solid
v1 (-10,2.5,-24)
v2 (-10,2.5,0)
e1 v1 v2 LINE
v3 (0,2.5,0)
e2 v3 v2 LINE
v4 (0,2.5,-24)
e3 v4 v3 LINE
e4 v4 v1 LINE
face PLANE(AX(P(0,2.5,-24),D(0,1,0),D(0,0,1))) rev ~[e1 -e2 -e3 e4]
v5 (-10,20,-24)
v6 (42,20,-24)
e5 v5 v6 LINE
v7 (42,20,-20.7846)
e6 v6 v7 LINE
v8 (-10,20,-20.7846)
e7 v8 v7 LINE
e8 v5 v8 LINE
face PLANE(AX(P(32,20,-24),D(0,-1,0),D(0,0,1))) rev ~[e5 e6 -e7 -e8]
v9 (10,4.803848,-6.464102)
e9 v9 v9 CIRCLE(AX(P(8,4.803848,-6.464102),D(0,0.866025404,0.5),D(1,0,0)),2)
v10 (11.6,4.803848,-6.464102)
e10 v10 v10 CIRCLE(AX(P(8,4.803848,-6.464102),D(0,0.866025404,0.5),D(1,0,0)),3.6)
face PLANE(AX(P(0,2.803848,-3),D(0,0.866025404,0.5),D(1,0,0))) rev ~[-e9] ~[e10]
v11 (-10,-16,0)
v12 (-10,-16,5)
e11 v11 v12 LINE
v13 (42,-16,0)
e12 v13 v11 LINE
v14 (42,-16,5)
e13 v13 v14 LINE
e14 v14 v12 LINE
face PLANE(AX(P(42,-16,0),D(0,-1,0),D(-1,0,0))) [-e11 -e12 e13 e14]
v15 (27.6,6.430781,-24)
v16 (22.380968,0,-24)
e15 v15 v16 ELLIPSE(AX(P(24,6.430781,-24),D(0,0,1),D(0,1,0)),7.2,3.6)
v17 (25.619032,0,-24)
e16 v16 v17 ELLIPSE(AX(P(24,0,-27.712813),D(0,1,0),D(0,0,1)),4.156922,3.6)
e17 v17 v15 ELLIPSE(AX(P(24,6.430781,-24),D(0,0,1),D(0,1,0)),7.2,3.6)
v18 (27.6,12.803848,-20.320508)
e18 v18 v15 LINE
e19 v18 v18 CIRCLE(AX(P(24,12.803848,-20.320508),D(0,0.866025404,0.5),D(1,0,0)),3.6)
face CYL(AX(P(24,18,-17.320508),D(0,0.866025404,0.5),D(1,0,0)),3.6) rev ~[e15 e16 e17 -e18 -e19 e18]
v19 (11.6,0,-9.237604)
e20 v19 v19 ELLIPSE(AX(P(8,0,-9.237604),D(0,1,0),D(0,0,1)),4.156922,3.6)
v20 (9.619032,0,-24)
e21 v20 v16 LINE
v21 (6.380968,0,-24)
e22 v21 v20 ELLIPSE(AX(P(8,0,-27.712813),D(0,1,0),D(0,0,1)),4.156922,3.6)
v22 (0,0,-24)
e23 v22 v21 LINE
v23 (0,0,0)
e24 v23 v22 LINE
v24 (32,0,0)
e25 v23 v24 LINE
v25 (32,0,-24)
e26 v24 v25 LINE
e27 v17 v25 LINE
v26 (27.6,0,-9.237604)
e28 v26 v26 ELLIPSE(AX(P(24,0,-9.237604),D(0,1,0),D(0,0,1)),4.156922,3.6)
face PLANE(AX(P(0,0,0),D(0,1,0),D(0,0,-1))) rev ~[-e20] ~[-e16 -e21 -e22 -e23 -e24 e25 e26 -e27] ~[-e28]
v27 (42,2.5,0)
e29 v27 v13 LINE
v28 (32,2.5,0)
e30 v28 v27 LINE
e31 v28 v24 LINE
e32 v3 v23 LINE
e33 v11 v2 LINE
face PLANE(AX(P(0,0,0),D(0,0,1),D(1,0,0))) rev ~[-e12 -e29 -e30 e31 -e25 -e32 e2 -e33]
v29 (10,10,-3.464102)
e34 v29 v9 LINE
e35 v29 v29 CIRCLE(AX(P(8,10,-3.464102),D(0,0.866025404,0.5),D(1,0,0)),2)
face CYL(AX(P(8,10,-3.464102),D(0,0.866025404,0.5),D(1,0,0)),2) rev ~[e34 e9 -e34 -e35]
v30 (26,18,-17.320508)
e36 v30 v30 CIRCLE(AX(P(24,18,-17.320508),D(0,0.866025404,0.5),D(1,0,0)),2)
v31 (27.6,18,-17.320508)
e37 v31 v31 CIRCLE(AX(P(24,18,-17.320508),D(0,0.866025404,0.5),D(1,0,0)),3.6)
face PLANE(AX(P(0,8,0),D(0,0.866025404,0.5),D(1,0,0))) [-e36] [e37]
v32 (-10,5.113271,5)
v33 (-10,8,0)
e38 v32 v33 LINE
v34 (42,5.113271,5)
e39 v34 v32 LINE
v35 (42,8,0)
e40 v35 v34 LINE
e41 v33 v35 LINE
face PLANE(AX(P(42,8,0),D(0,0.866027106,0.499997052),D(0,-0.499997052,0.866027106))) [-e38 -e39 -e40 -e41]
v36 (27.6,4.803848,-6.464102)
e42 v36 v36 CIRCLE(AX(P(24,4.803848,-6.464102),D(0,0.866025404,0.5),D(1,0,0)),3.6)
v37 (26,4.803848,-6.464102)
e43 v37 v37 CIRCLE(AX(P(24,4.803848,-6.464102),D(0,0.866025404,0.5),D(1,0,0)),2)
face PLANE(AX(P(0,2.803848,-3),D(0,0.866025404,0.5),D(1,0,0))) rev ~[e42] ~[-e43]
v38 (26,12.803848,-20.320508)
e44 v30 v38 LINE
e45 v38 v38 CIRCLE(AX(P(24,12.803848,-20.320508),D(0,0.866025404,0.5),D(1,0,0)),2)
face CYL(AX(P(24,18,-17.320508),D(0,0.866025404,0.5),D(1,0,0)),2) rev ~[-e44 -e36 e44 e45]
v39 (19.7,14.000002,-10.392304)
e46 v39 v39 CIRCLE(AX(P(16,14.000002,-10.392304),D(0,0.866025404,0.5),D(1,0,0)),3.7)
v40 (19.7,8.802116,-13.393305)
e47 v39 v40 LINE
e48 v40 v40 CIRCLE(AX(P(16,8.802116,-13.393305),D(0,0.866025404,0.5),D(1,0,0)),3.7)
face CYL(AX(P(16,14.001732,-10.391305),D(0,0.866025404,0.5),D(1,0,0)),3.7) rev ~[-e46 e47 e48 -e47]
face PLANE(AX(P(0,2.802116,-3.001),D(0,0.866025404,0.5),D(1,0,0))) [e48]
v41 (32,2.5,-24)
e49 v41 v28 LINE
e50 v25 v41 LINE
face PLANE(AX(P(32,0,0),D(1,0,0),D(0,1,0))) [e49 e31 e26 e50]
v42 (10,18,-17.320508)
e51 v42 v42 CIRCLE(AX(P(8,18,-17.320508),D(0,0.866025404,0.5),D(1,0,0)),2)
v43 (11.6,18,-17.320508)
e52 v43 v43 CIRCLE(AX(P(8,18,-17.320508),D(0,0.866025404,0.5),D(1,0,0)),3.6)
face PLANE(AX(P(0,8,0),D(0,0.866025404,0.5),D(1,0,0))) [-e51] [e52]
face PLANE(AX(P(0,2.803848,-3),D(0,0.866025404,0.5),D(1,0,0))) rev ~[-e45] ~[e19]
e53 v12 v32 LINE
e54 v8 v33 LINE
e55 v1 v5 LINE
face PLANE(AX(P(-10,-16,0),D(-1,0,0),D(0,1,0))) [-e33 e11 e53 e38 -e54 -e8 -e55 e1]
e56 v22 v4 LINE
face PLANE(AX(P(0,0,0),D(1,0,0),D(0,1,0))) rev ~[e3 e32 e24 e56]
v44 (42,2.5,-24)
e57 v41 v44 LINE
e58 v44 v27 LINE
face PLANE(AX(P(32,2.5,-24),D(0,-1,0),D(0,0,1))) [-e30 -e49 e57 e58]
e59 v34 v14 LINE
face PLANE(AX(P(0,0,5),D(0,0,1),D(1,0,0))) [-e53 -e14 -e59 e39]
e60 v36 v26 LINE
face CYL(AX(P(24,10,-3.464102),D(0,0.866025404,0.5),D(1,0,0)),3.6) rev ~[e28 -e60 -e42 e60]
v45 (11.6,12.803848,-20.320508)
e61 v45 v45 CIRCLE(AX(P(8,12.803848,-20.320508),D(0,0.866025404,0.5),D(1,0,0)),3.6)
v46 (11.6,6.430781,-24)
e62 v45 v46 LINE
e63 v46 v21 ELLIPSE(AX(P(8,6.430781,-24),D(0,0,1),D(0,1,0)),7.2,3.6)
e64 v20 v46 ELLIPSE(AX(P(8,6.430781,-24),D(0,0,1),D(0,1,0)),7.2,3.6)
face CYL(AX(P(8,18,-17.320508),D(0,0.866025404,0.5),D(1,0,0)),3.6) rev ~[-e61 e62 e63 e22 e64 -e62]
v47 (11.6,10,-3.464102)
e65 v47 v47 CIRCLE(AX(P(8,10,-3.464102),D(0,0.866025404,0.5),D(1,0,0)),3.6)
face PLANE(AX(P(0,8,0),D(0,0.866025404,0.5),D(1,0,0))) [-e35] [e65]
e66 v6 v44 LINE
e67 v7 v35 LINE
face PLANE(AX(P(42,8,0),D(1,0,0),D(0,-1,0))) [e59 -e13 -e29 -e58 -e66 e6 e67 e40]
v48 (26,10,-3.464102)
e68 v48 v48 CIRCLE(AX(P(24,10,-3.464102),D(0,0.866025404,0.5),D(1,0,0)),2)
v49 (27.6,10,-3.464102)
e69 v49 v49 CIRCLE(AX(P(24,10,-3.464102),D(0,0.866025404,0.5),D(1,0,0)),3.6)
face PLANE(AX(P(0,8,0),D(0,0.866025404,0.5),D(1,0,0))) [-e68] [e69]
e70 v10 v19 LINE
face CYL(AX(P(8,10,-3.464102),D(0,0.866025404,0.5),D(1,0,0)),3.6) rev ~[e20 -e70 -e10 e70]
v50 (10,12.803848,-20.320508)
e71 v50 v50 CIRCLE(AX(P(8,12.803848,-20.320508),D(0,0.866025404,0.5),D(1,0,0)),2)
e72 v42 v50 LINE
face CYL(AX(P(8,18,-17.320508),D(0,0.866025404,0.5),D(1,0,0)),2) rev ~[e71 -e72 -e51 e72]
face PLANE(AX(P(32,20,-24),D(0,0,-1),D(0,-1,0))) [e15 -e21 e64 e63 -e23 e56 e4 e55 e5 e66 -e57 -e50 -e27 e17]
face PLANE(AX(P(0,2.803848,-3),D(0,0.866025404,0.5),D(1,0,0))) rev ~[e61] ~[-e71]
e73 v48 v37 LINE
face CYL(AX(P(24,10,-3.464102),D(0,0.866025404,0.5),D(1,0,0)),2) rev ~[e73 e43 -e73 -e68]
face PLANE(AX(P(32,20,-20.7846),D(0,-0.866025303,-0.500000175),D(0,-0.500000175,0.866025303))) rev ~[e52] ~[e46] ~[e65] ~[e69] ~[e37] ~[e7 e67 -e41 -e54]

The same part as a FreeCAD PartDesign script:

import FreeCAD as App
import Part
import Sketcher

V = App.Vector
Q = App.Units.Quantity


def add_polygon(sketch, points):
    """Adds a closed chain of lines whose ends are joined by coincident constraints."""
    first, n = sketch.GeometryCount, len(points)
    for a, b in zip(points, points[1:] + points[:1]):
        sketch.addGeometry(Part.LineSegment(App.Vector(*a, 0), App.Vector(*b, 0)), False)
    for i in range(n):
        sketch.addConstraint(Sketcher.Constraint("Coincident", first + i, 2, first + (i + 1) % n, 1))

doc = App.newDocument("Part")
params = doc.addObject("Spreadsheet::Sheet", "Params")
for row, (alias, value) in enumerate([
    ("sketch1_width", "8 mm"),
    ("sketch1_width2", "20 mm"),
    ("sketch1_height", "24 mm"),
    ("pad1_length", "32 mm"),
    ("sketch2_diameter", "7.2 mm"),
    ("sketch3_diameter", "7.4 mm"),
    ("pocket2_length", "6 mm"),
    ("sketch4_diameter", "4 mm"),
    ("sketch4_diameter2", "7.2 mm"),
    ("pad2_length", "6 mm"),
    ("sketch5_width", "17.5 mm"),
    ("sketch5_height", "24 mm"),
    ("sketch5_length", "24 mm"),
    ("pad3_length", "10 mm"),
    ("sketch6_width", "17.5 mm"),
    ("sketch6_height", "24 mm"),
    ("sketch6_length", "24 mm"),
    ("pad4_length", "10 mm"),
    ("sketch7_width", "52 mm"),
    ("sketch7_height", "24 mm"),
    ("pad5_length", "5 mm"),
], start=1):
    params.set(f"A{row}", alias)
    params.set(f"B{row}", "=" + value)
    params.setAlias(f"B{row}", alias)

body = doc.addObject("PartDesign::Body", "Body")

# Sketch on YZ plane
sketch1 = body.newObject("Sketcher::SketchObject", "Sketch")
sketch1.AttachmentSupport = (doc.getObject("YZ_Plane"), [""])
sketch1.MapMode = "FlatFace"
add_polygon(sketch1, [(8, 0), (0, 0), (0, -24), (20, -24), (20, -20.8)])  # lines 0-4
sketch1.addConstraint([
    Sketcher.Constraint("Horizontal", 0),
    Sketcher.Constraint("Vertical", 1),
    Sketcher.Constraint("Horizontal", 2),
    Sketcher.Constraint("Vertical", 3),
    Sketcher.Constraint("Coincident", 0, 2, -1, 1),
    Sketcher.Constraint("DistanceX", 0, 2, 0, 1, 8.0),
    Sketcher.Constraint("DistanceX", 2, 1, 2, 2, 20.0),
    Sketcher.Constraint("DistanceY", 1, 2, 1, 1, 24.0),
    Sketcher.Constraint("Angle", 4, Q("120 deg")),
])
sketch1.setExpression("Constraints[10]", "Params.sketch1_width")
sketch1.setExpression("Constraints[11]", "Params.sketch1_width2")
sketch1.setExpression("Constraints[12]", "Params.sketch1_height")
pad1 = body.newObject("PartDesign::Pad", "Pad")
pad1.Profile = sketch1
pad1.setExpression("Length", "Params.pad1_length")

# Sketch on an angled plane
sketch2 = body.newObject("Sketcher::SketchObject", "Sketch001")
sketch2.Placement = App.Placement(V(0, 8, 0), App.Rotation(V(1, 0, 0), V(0, 0.5, -0.866025404), V(0, 0.866025404, 0.5), "ZXY"))
sketch2.addGeometry([
    Part.Circle(V(8, 20, 0), V(0, 0, 1), 3.6),
    Part.Circle(V(24, 20, 0), V(0, 0, 1), 3.6),
    Part.Circle(V(24, 4, 0), V(0, 0, 1), 3.6),
    Part.Circle(V(8, 4, 0), V(0, 0, 1), 3.6),
], False)
sketch2.addConstraint([
    Sketcher.Constraint("Equal", 0, 1),
    Sketcher.Constraint("Equal", 1, 2),
    Sketcher.Constraint("Equal", 2, 3),
    Sketcher.Constraint("Horizontal", 0, 3, 1, 3),
    Sketcher.Constraint("Horizontal", 2, 3, 3, 3),
    Sketcher.Constraint("Vertical", 1, 3, 2, 3),
    Sketcher.Constraint("Vertical", 0, 3, 3, 3),
    Sketcher.Constraint("Diameter", 0, 7.2),
    Sketcher.Constraint("DistanceX", -1, 1, 0, 3, 8.0),
    Sketcher.Constraint("DistanceY", -1, 1, 2, 3, 4.0),
    Sketcher.Constraint("DistanceX", 0, 3, 1, 3, 16.0),
    Sketcher.Constraint("DistanceY", 2, 3, 1, 3, 16.0),
])
sketch2.setExpression("Constraints[7]", "Params.sketch2_diameter")
pocket1 = body.newObject("PartDesign::Pocket", "Pocket")
pocket1.Profile = sketch2
pocket1.Type = "ThroughAll"

# Sketch on an angled plane
sketch3 = body.newObject("Sketcher::SketchObject", "Sketch002")
sketch3.Placement = App.Placement(V(0, 8, 0), App.Rotation(V(1, 0, 0), V(0, 0.5, -0.866025404), V(0, 0.866025404, 0.5), "ZXY"))
sketch3.addGeometry(Part.Circle(V(16, 12, 0), V(0, 0, 1), 3.7), False)
sketch3.addConstraint([
    Sketcher.Constraint("Diameter", 0, 7.4),
    Sketcher.Constraint("DistanceX", -1, 1, 0, 3, 16.0),
    Sketcher.Constraint("DistanceY", -1, 1, 0, 3, 12.0),
])
sketch3.setExpression("Constraints[0]", "Params.sketch3_diameter")
pocket2 = body.newObject("PartDesign::Pocket", "Pocket001")
pocket2.Profile = sketch3
pocket2.setExpression("Length", "Params.pocket2_length")

# Sketch on an angled plane
sketch4 = body.newObject("Sketcher::SketchObject", "Sketch003")
sketch4.Placement = App.Placement(V(0, 8, 0), App.Rotation(V(1, 0, 0), V(0, 0.5, -0.866025404), V(0, 0.866025404, 0.5), "ZXY"))
sketch4.addGeometry([
    Part.Circle(V(24, 20, 0), V(0, 0, 1), 3.6),  # 0
    Part.Circle(V(24, 20, 0), V(0, 0, 1), 2),  # 1
    Part.Circle(V(8, 20, 0), V(0, 0, 1), 3.6),  # 2
    Part.Circle(V(8, 20, 0), V(0, 0, 1), 2),  # 3
    Part.Circle(V(8, 4, 0), V(0, 0, 1), 3.6),  # 4
    Part.Circle(V(8, 4, 0), V(0, 0, 1), 2),  # 5
    Part.Circle(V(24, 4, 0), V(0, 0, 1), 3.6),  # 6
    Part.Circle(V(24, 4, 0), V(0, 0, 1), 2),  # 7
], False)
sketch4.addConstraint([
    Sketcher.Constraint("Coincident", 1, 3, 0, 3),
    Sketcher.Constraint("Coincident", 3, 3, 2, 3),
    Sketcher.Constraint("Coincident", 5, 3, 4, 3),
    Sketcher.Constraint("Coincident", 7, 3, 6, 3),
    Sketcher.Constraint("Equal", 0, 2),
    Sketcher.Constraint("Equal", 1, 3),
    Sketcher.Constraint("Equal", 2, 4),
    Sketcher.Constraint("Equal", 3, 5),
    Sketcher.Constraint("Equal", 4, 6),
    Sketcher.Constraint("Equal", 5, 7),
    Sketcher.Constraint("Horizontal", 1, 3, 2, 3),
    Sketcher.Constraint("Horizontal", 5, 3, 6, 3),
    Sketcher.Constraint("Vertical", 3, 3, 4, 3),
    Sketcher.Constraint("Vertical", 1, 3, 6, 3),
    Sketcher.Constraint("Diameter", 1, 4.0),
    Sketcher.Constraint("Diameter", 0, 7.2),
    Sketcher.Constraint("DistanceY", -1, 1, 4, 3, 4.0),
    Sketcher.Constraint("DistanceX", -1, 1, 0, 3, 24.0),
    Sketcher.Constraint("DistanceY", -1, 1, 0, 3, 20.0),
    Sketcher.Constraint("DistanceX", -1, 1, 2, 3, 8.0),
])
sketch4.setExpression("Constraints[14]", "Params.sketch4_diameter")
sketch4.setExpression("Constraints[15]", "Params.sketch4_diameter2")
pad2 = body.newObject("PartDesign::Pad", "Pad001")
pad2.Profile = sketch4
pad2.setExpression("Length", "Params.pad2_length")
pad2.Reversed = True

# Sketch on YZ plane
sketch5 = body.newObject("Sketcher::SketchObject", "Sketch004")
sketch5.AttachmentSupport = (doc.getObject("YZ_Plane"), [""])
sketch5.MapMode = "FlatFace"
add_polygon(sketch5, [(20, -20.8), (20, -24), (2.5, -24), (2.5, 0), (8, 0)])  # lines 0-4
sketch5.addConstraint([
    Sketcher.Constraint("Vertical", 0),
    Sketcher.Constraint("Horizontal", 1),
    Sketcher.Constraint("Vertical", 2),
    Sketcher.Constraint("Horizontal", 3),
    Sketcher.Constraint("PointOnObject", 2, 2, -1),
    Sketcher.Constraint("DistanceX", 1, 2, 1, 1, 17.5),
    Sketcher.Constraint("DistanceY", 2, 1, 2, 2, 24.0),
    Sketcher.Constraint("Angle", 4, Q("-60 deg")),
    Sketcher.Constraint("Distance", 4, 24.0),
    Sketcher.Constraint("DistanceX", -1, 1, 0, 2, 20.0),
])
sketch5.setExpression("Constraints[10]", "Params.sketch5_width")
sketch5.setExpression("Constraints[11]", "Params.sketch5_height")
sketch5.setExpression("Constraints[13]", "Params.sketch5_length")
pad3 = body.newObject("PartDesign::Pad", "Pad002")
pad3.Profile = sketch5
pad3.setExpression("Length", "Params.pad3_length")
pad3.Reversed = True

# Sketch on YZ plane
sketch6 = body.newObject("Sketcher::SketchObject", "Sketch005")
sketch6.AttachmentSupport = (doc.getObject("YZ_Plane"), [""])
sketch6.MapMode = "FlatFace"
sketch6.AttachmentOffset = App.Placement(V(0, 0, 32), App.Rotation())
add_polygon(sketch6, [(2.5, -24), (20, -24), (20, -20.8), (8, 0), (2.5, 0)])  # lines 0-4
sketch6.addConstraint([
    Sketcher.Constraint("Horizontal", 0),
    Sketcher.Constraint("Vertical", 1),
    Sketcher.Constraint("Horizontal", 3),
    Sketcher.Constraint("Vertical", 4),
    Sketcher.Constraint("PointOnObject", 2, 2, -1),
    Sketcher.Constraint("DistanceX", 0, 1, 0, 2, 17.5),
    Sketcher.Constraint("DistanceY", 4, 2, 4, 1, 24.0),
    Sketcher.Constraint("Angle", 2, Q("120 deg")),
    Sketcher.Constraint("Distance", 2, 24.0),
    Sketcher.Constraint("DistanceX", -1, 1, 0, 2, 20.0),
])
sketch6.setExpression("Constraints[10]", "Params.sketch6_width")
sketch6.setExpression("Constraints[11]", "Params.sketch6_height")
sketch6.setExpression("Constraints[13]", "Params.sketch6_length")
pad4 = body.newObject("PartDesign::Pad", "Pad003")
pad4.Profile = sketch6
pad4.setExpression("Length", "Params.pad4_length")

# Sketch on XY plane
sketch7 = body.newObject("Sketcher::SketchObject", "Sketch006")
sketch7.AttachmentSupport = (doc.getObject("XY_Plane"), [""])
sketch7.MapMode = "FlatFace"
add_polygon(sketch7, [(42, 8), (-10, 8), (-10, -16), (42, -16)])  # lines 0-3
sketch7.addConstraint([
    Sketcher.Constraint("Horizontal", 0),
    Sketcher.Constraint("Vertical", 1),
    Sketcher.Constraint("Horizontal", 2),
    Sketcher.Constraint("Vertical", 3),
    Sketcher.Constraint("DistanceX", 0, 2, 0, 1, 52.0),
    Sketcher.Constraint("DistanceY", 1, 2, 1, 1, 24.0),
    Sketcher.Constraint("DistanceX", 0, 2, -1, 1, 10.0),
    Sketcher.Constraint("DistanceY", -1, 1, 0, 2, 8.0),
])
sketch7.setExpression("Constraints[8]", "Params.sketch7_width")
sketch7.setExpression("Constraints[9]", "Params.sketch7_height")
pad5 = body.newObject("PartDesign::Pad", "Pad004")
pad5.Profile = sketch7
pad5.setExpression("Length", "Params.pad5_length")

# Sketch on YZ plane
sketch8 = body.newObject("Sketcher::SketchObject", "Sketch007")
sketch8.AttachmentSupport = (doc.getObject("YZ_Plane"), [""])
sketch8.MapMode = "FlatFace"
sketch8.AttachmentOffset = App.Placement(V(0, 0, 42), App.Rotation())
add_polygon(sketch8, [(3, 8.6), (8, 0), (11.5, 0), (11.5, 8.6)])  # lines 0-3
sketch8.addConstraint([
    Sketcher.Constraint("Horizontal", 1),
    Sketcher.Constraint("Vertical", 2),
    Sketcher.Constraint("Horizontal", 3),
    Sketcher.Constraint("PointOnObject", 0, 2, -1),
    Sketcher.Constraint("Angle", 0, Q("-60.0002 deg")),
    Sketcher.Constraint("DistanceX", -1, 1, 0, 2, 8.0),
    Sketcher.Constraint("DistanceY", 2, 1, 2, 2, 8.636),
    Sketcher.Constraint("DistanceX", 1, 1, 1, 2, 3.5347),
])
pocket3 = body.newObject("PartDesign::Pocket", "Pocket002")
pocket3.Profile = sketch8
pocket3.Type = "ThroughAll"

doc.recompute()
